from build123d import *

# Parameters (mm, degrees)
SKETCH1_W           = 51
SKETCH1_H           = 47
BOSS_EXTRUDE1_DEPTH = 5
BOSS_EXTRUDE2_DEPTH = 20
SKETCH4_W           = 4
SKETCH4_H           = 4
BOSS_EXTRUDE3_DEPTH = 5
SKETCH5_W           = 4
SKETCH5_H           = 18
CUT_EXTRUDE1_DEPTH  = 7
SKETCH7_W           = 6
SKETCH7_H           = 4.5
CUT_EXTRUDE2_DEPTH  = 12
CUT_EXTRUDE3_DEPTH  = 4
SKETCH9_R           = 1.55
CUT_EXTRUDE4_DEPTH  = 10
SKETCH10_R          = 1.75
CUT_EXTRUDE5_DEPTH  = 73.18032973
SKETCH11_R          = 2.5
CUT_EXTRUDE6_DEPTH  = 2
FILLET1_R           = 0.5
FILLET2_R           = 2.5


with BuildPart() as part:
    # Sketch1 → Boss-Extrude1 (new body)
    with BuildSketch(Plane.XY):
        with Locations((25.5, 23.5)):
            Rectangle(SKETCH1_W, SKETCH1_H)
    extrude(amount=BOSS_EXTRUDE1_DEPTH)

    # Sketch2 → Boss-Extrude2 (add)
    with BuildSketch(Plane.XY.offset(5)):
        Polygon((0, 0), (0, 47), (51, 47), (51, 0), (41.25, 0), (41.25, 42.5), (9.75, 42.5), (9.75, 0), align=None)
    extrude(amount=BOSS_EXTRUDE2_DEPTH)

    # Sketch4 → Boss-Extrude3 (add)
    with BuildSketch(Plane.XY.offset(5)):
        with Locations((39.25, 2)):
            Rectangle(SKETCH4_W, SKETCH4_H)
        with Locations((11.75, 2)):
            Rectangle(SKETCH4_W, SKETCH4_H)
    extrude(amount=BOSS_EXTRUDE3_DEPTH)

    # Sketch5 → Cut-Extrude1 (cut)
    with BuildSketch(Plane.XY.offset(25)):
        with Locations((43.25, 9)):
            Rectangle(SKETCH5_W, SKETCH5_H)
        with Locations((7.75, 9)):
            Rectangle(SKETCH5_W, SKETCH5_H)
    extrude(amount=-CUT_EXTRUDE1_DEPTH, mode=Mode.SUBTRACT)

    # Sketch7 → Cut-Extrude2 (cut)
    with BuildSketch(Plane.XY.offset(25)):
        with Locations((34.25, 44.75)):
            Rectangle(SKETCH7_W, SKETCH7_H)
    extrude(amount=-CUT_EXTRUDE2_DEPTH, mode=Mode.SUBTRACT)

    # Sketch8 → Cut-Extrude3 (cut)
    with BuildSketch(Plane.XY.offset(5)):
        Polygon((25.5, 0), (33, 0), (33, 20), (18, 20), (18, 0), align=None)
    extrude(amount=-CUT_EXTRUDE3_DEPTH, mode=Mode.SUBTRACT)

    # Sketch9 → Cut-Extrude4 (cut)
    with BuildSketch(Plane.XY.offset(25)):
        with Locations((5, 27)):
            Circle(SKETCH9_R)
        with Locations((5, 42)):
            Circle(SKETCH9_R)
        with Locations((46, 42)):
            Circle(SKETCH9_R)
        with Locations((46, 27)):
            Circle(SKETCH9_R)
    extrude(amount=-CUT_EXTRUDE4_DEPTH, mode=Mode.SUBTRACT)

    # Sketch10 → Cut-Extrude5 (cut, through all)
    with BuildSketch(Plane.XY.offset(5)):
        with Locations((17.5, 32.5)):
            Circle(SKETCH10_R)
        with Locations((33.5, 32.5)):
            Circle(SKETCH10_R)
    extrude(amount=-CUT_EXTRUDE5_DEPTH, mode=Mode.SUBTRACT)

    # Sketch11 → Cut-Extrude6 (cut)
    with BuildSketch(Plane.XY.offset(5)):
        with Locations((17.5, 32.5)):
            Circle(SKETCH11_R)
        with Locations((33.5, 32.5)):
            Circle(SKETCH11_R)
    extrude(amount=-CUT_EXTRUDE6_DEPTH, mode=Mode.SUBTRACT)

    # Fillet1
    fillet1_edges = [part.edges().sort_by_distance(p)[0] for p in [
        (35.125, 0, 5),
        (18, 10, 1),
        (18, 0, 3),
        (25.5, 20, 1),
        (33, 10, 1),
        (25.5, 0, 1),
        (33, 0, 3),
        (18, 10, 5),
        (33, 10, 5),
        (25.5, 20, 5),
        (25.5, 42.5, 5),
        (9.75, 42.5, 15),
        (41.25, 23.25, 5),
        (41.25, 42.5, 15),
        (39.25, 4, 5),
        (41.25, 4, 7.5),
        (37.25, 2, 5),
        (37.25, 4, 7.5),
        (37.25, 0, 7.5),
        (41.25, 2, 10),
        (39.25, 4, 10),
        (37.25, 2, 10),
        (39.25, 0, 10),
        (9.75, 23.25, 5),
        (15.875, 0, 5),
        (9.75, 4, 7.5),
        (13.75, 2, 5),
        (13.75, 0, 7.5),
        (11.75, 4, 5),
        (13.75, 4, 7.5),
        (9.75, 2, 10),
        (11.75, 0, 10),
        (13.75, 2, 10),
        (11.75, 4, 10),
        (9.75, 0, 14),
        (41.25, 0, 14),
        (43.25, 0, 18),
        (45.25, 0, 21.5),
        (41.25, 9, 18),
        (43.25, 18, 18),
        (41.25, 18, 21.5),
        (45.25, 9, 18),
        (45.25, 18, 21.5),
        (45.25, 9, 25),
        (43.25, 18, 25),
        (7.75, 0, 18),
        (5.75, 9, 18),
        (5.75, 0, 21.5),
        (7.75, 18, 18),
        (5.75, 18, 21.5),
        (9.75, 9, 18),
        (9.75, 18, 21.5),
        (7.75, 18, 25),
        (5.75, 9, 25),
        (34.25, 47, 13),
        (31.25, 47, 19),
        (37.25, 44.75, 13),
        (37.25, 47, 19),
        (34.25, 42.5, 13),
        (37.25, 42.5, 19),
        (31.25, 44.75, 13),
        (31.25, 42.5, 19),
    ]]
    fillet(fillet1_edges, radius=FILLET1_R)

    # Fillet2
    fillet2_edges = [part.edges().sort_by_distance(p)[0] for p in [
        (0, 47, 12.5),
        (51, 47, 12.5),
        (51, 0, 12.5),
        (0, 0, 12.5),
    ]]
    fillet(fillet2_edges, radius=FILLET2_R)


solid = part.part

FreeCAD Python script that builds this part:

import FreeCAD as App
import Part
import Sketcher

V = App.Vector


def edges_at(feature, points):
    """Names of the edges that pass closest to the given points."""
    edges = feature.Shape.Edges
    near = lambda p: min(range(len(edges)), key=lambda i: edges[i].distToShape(Part.Vertex(*p))[0])
    return sorted({f"Edge{near(p) + 1}" for p in points})


def add_polygon(sketch, points):
    """Adds a closed chain of lines whose ends are joined by coincident constraints."""
    first, n = sketch.GeometryCount, len(points)
    for a, b in zip(points, points[1:] + points[:1]):
        sketch.addGeometry(Part.LineSegment(App.Vector(*a, 0), App.Vector(*b, 0)), False)
    for i in range(n):
        sketch.addConstraint(Sketcher.Constraint("Coincident", first + i, 2, first + (i + 1) % n, 1))

doc = App.newDocument("Part")
body = doc.addObject("PartDesign::Body", "Body")

# Sketch on XY plane
sketch1 = doc.addObject("Sketcher::SketchObject", "Sketch")
body.addObject(sketch1)
sketch1.AttachmentSupport = (doc.XY_Plane, [""])
sketch1.MapMode = "FlatFace"
add_polygon(sketch1, [(0, 47), (0, 0), (51, 0), (51, 47)])  # lines 0-3
sketch1.addConstraint(Sketcher.Constraint("Vertical", 0))
sketch1.addConstraint(Sketcher.Constraint("Horizontal", 1))
sketch1.addConstraint(Sketcher.Constraint("Vertical", 2))
sketch1.addConstraint(Sketcher.Constraint("Horizontal", 3))
sketch1.addConstraint(Sketcher.Constraint("Coincident", 0, 2, -1, 1))
sketch1.addConstraint(Sketcher.Constraint("DistanceX", 1, 1, 1, 2, 51.0))
sketch1.addConstraint(Sketcher.Constraint("DistanceY", 0, 2, 0, 1, 47.0))
pad1 = doc.addObject("PartDesign::Pad", "Pad")
body.addObject(pad1)
pad1.Profile = sketch1
pad1.Length = 5

# Sketch on XY plane
sketch2 = doc.addObject("Sketcher::SketchObject", "Sketch001")
body.addObject(sketch2)
sketch2.AttachmentSupport = (doc.XY_Plane, [""])
sketch2.MapMode = "FlatFace"
sketch2.AttachmentOffset = App.Placement(V(0, 0, 5), App.Rotation())
add_polygon(sketch2, [(0, 47), (0, 0), (9.75, 0), (9.75, 42.5), (41.25, 42.5), (41.25, 0), (51, 0), (51, 47)])  # lines 0-7
sketch2.addConstraint(Sketcher.Constraint("Vertical", 0))
sketch2.addConstraint(Sketcher.Constraint("Horizontal", 1))
sketch2.addConstraint(Sketcher.Constraint("Vertical", 2))
sketch2.addConstraint(Sketcher.Constraint("Horizontal", 3))
sketch2.addConstraint(Sketcher.Constraint("Vertical", 4))
sketch2.addConstraint(Sketcher.Constraint("Horizontal", 5))
sketch2.addConstraint(Sketcher.Constraint("Vertical", 6))
sketch2.addConstraint(Sketcher.Constraint("Horizontal", 7))
sketch2.addConstraint(Sketcher.Constraint("Coincident", 0, 2, -1, 1))
sketch2.addConstraint(Sketcher.Constraint("PointOnObject", 4, 2, -1))
sketch2.addConstraint(Sketcher.Constraint("Equal", 1, 5))
sketch2.addConstraint(Sketcher.Constraint("DistanceX", 7, 2, 7, 1, 51.0))
sketch2.addConstraint(Sketcher.Constraint("DistanceY", 0, 2, 0, 1, 47.0))
sketch2.addConstraint(Sketcher.Constraint("DistanceX", 3, 1, 3, 2, 31.5))
sketch2.addConstraint(Sketcher.Constraint("DistanceY", 2, 1, 2, 2, 42.5))
pad2 = doc.addObject("PartDesign::Pad", "Pad001")
body.addObject(pad2)
pad2.Profile = sketch2
pad2.Length = 20

# Sketch on XY plane
sketch3 = doc.addObject("Sketcher::SketchObject", "Sketch002")
body.addObject(sketch3)
sketch3.AttachmentSupport = (doc.XY_Plane, [""])
sketch3.MapMode = "FlatFace"
sketch3.AttachmentOffset = App.Placement(V(0, 0, 5), App.Rotation())
add_polygon(sketch3, [(37.25, 4), (37.25, 0), (41.25, 0), (41.25, 4)])  # lines 0-3
add_polygon(sketch3, [(9.75, 4), (9.75, 0), (13.75, 0), (13.75, 4)])  # lines 4-7
sketch3.addConstraint(Sketcher.Constraint("Vertical", 0))
sketch3.addConstraint(Sketcher.Constraint("Horizontal", 1))
sketch3.addConstraint(Sketcher.Constraint("Vertical", 2))
sketch3.addConstraint(Sketcher.Constraint("Horizontal", 3))
sketch3.addConstraint(Sketcher.Constraint("Vertical", 4))
sketch3.addConstraint(Sketcher.Constraint("Horizontal", 5))
sketch3.addConstraint(Sketcher.Constraint("Vertical", 6))
sketch3.addConstraint(Sketcher.Constraint("Horizontal", 7))
sketch3.addConstraint(Sketcher.Constraint("PointOnObject", 0, 2, -1))
sketch3.addConstraint(Sketcher.Constraint("PointOnObject", 4, 2, -1))
sketch3.addConstraint(Sketcher.Constraint("Horizontal", 3, 2, 6, 2))
sketch3.addConstraint(Sketcher.Constraint("Equal", 3, 5))
sketch3.addConstraint(Sketcher.Constraint("Equal", 7, 0))
sketch3.addConstraint(Sketcher.Constraint("DistanceX", 1, 1, 1, 2, 4.0))
sketch3.addConstraint(Sketcher.Constraint("DistanceX", 4, 2, 0, 2, 27.5))
sketch3.addConstraint(Sketcher.Constraint("DistanceX", -1, 1, 0, 2, 37.25))
pad3 = doc.addObject("PartDesign::Pad", "Pad002")
body.addObject(pad3)
pad3.Profile = sketch3
pad3.Length = 5

# Sketch on XY plane
sketch4 = doc.addObject("Sketcher::SketchObject", "Sketch003")
body.addObject(sketch4)
sketch4.AttachmentSupport = (doc.XY_Plane, [""])
sketch4.MapMode = "FlatFace"
sketch4.AttachmentOffset = App.Placement(V(0, 0, 25), App.Rotation())
add_polygon(sketch4, [(41.25, 18), (41.25, 0), (45.25, 0), (45.25, 18)])  # lines 0-3
add_polygon(sketch4, [(5.75, 18), (5.75, 0), (9.75, 0), (9.75, 18)])  # lines 4-7
sketch4.addConstraint(Sketcher.Constraint("Vertical", 0))
sketch4.addConstraint(Sketcher.Constraint("Horizontal", 1))
sketch4.addConstraint(Sketcher.Constraint("Vertical", 2))
sketch4.addConstraint(Sketcher.Constraint("Horizontal", 3))
sketch4.addConstraint(Sketcher.Constraint("Vertical", 4))
sketch4.addConstraint(Sketcher.Constraint("Horizontal", 5))
sketch4.addConstraint(Sketcher.Constraint("Vertical", 6))
sketch4.addConstraint(Sketcher.Constraint("Horizontal", 7))
sketch4.addConstraint(Sketcher.Constraint("PointOnObject", 0, 2, -1))
sketch4.addConstraint(Sketcher.Constraint("PointOnObject", 4, 2, -1))
sketch4.addConstraint(Sketcher.Constraint("Horizontal", 3, 2, 6, 2))
sketch4.addConstraint(Sketcher.Constraint("Equal", 3, 5))
sketch4.addConstraint(Sketcher.Constraint("DistanceX", 1, 1, 1, 2, 4.0))
sketch4.addConstraint(Sketcher.Constraint("DistanceY", 0, 2, 0, 1, 18.0))
sketch4.addConstraint(Sketcher.Constraint("DistanceX", 4, 2, 0, 2, 35.5))
sketch4.addConstraint(Sketcher.Constraint("DistanceX", -1, 1, 0, 2, 41.25))
pocket1 = doc.addObject("PartDesign::Pocket", "Pocket")
body.addObject(pocket1)
pocket1.Profile = sketch4
pocket1.Length = 7

# Sketch on XY plane
sketch5 = doc.addObject("Sketcher::SketchObject", "Sketch004")
body.addObject(sketch5)
sketch5.AttachmentSupport = (doc.XY_Plane, [""])
sketch5.MapMode = "FlatFace"
sketch5.AttachmentOffset = App.Placement(V(0, 0, 25), App.Rotation())
add_polygon(sketch5, [(31.25, 47), (31.25, 42.5), (37.25, 42.5), (37.25, 47)])  # lines 0-3
sketch5.addConstraint(Sketcher.Constraint("Vertical", 0))
sketch5.addConstraint(Sketcher.Constraint("Horizontal", 1))
sketch5.addConstraint(Sketcher.Constraint("Vertical", 2))
sketch5.addConstraint(Sketcher.Constraint("Horizontal", 3))
sketch5.addConstraint(Sketcher.Constraint("DistanceX", 1, 1, 1, 2, 6.0))
sketch5.addConstraint(Sketcher.Constraint("DistanceY", 0, 2, 0, 1, 4.5))
sketch5.addConstraint(Sketcher.Constraint("DistanceY", -1, 1, 2, 2, 47.0))
sketch5.addConstraint(Sketcher.Constraint("DistanceX", -1, 1, 0, 2, 31.25))
pocket2 = doc.addObject("PartDesign::Pocket", "Pocket001")
body.addObject(pocket2)
pocket2.Profile = sketch5
pocket2.Length = 12

# Sketch on XY plane
sketch6 = doc.addObject("Sketcher::SketchObject", "Sketch005")
body.addObject(sketch6)
sketch6.AttachmentSupport = (doc.XY_Plane, [""])
sketch6.MapMode = "FlatFace"
sketch6.AttachmentOffset = App.Placement(V(0, 0, 5), App.Rotation())
add_polygon(sketch6, [(33, 0), (33, 20), (18, 20), (18, 0)])  # lines 0-3
sketch6.addConstraint(Sketcher.Constraint("Vertical", 0))
sketch6.addConstraint(Sketcher.Constraint("Horizontal", 1))
sketch6.addConstraint(Sketcher.Constraint("Vertical", 2))
sketch6.addConstraint(Sketcher.Constraint("Horizontal", 3))
sketch6.addConstraint(Sketcher.Constraint("PointOnObject", 2, 2, -1))
sketch6.addConstraint(Sketcher.Constraint("DistanceX", 1, 2, 1, 1, 15.0))
sketch6.addConstraint(Sketcher.Constraint("DistanceY", 0, 1, 0, 2, 20.0))
sketch6.addConstraint(Sketcher.Constraint("DistanceX", -1, 1, 0, 2, 33.0))
pocket3 = doc.addObject("PartDesign::Pocket", "Pocket002")
body.addObject(pocket3)
pocket3.Profile = sketch6
pocket3.Length = 4

# Sketch on XY plane
sketch7 = doc.addObject("Sketcher::SketchObject", "Sketch006")
body.addObject(sketch7)
sketch7.AttachmentSupport = (doc.XY_Plane, [""])
sketch7.MapMode = "FlatFace"
sketch7.AttachmentOffset = App.Placement(V(0, 0, 25), App.Rotation())
sketch7.addGeometry(Part.Circle(V(5, 27, 0), V(0, 0, 1), 1.55), False)
sketch7.addGeometry(Part.Circle(V(5, 42, 0), V(0, 0, 1), 1.55), False)
sketch7.addGeometry(Part.Circle(V(46, 42, 0), V(0, 0, 1), 1.55), False)
sketch7.addGeometry(Part.Circle(V(46, 27, 0), V(0, 0, 1), 1.55), False)
sketch7.addConstraint(Sketcher.Constraint("Equal", 0, 1))
sketch7.addConstraint(Sketcher.Constraint("Equal", 1, 2))
sketch7.addConstraint(Sketcher.Constraint("Equal", 2, 3))
sketch7.addConstraint(Sketcher.Constraint("Horizontal", 1, 3, 2, 3))
sketch7.addConstraint(Sketcher.Constraint("Horizontal", 0, 3, 3, 3))
sketch7.addConstraint(Sketcher.Constraint("Vertical", 0, 3, 1, 3))
sketch7.addConstraint(Sketcher.Constraint("Vertical", 2, 3, 3, 3))
sketch7.addConstraint(Sketcher.Constraint("Diameter", 0, 3.1))
sketch7.addConstraint(Sketcher.Constraint("DistanceX", -1, 1, 0, 3, 5.0))
sketch7.addConstraint(Sketcher.Constraint("DistanceY", -1, 1, 0, 3, 27.0))
sketch7.addConstraint(Sketcher.Constraint("DistanceY", -1, 1, 1, 3, 42.0))
sketch7.addConstraint(Sketcher.Constraint("DistanceX", -1, 1, 2, 3, 46.0))
pocket4 = doc.addObject("PartDesign::Pocket", "Pocket003")
body.addObject(pocket4)
pocket4.Profile = sketch7
pocket4.Length = 10

# Sketch on XY plane
sketch8 = doc.addObject("Sketcher::SketchObject", "Sketch007")
body.addObject(sketch8)
sketch8.AttachmentSupport = (doc.XY_Plane, [""])
sketch8.MapMode = "FlatFace"
sketch8.AttachmentOffset = App.Placement(V(0, 0, 5), App.Rotation())
sketch8.addGeometry(Part.Circle(V(17.5, 32.5, 0), V(0, 0, 1), 1.75), False)
sketch8.addGeometry(Part.Circle(V(33.5, 32.5, 0), V(0, 0, 1), 1.75), False)
sketch8.addConstraint(Sketcher.Constraint("Equal", 0, 1))
sketch8.addConstraint(Sketcher.Constraint("Horizontal", 0, 3, 1, 3))
sketch8.addConstraint(Sketcher.Constraint("Diameter", 0, 3.5))
sketch8.addConstraint(Sketcher.Constraint("DistanceX", 0, 3, 1, 3, 16.0))
sketch8.addConstraint(Sketcher.Constraint("DistanceX", -1, 1, 0, 3, 17.5))
sketch8.addConstraint(Sketcher.Constraint("DistanceY", -1, 1, 0, 3, 32.5))
pocket5 = doc.addObject("PartDesign::Pocket", "Pocket004")
body.addObject(pocket5)
pocket5.Profile = sketch8
pocket5.Type = "ThroughAll"

# Sketch on XY plane
sketch9 = doc.addObject("Sketcher::SketchObject", "Sketch008")
body.addObject(sketch9)
sketch9.AttachmentSupport = (doc.XY_Plane, [""])
sketch9.MapMode = "FlatFace"
sketch9.AttachmentOffset = App.Placement(V(0, 0, 5), App.Rotation())
sketch9.addGeometry(Part.Circle(V(17.5, 32.5, 0), V(0, 0, 1), 2.5), False)
sketch9.addGeometry(Part.Circle(V(33.5, 32.5, 0), V(0, 0, 1), 2.5), False)
sketch9.addConstraint(Sketcher.Constraint("Equal", 0, 1))
sketch9.addConstraint(Sketcher.Constraint("Horizontal", 0, 3, 1, 3))
sketch9.addConstraint(Sketcher.Constraint("Diameter", 0, 5.0))
sketch9.addConstraint(Sketcher.Constraint("DistanceX", 0, 3, 1, 3, 16.0))
sketch9.addConstraint(Sketcher.Constraint("DistanceX", -1, 1, 0, 3, 17.5))
sketch9.addConstraint(Sketcher.Constraint("DistanceY", -1, 1, 0, 3, 32.5))
pocket6 = doc.addObject("PartDesign::Pocket", "Pocket005")
body.addObject(pocket6)
pocket6.Profile = sketch9
pocket6.Length = 2
doc.recompute()

fillet = doc.addObject("PartDesign::Fillet", "Fillet")
body.addObject(fillet)
fillet.Base = (pocket6, edges_at(pocket6, [
    (35.125, 0, 5),
    (18, 10, 1),
    (18, 0, 3),
    (25.5, 20, 1),
    (33, 10, 1),
    (25.5, 0, 1),
    (33, 0, 3),
    (18, 10, 5),
    (33, 10, 5),
    (25.5, 20, 5),
    (25.5, 42.5, 5),
    (9.75, 42.5, 15),
    (41.25, 23.25, 5),
    (41.25, 42.5, 15),
    (39.25, 4, 5),
    (41.25, 4, 7.5),
    (37.25, 2, 5),
    (37.25, 4, 7.5),
    (37.25, 0, 7.5),
    (41.25, 2, 10),
    (39.25, 4, 10),
    (37.25, 2, 10),
    (39.25, 0, 10),
    (9.75, 23.25, 5),
    (15.875, 0, 5),
    (9.75, 4, 7.5),
    (13.75, 2, 5),
    (13.75, 0, 7.5),
    (11.75, 4, 5),
    (13.75, 4, 7.5),
    (9.75, 2, 10),
    (11.75, 0, 10),
    (13.75, 2, 10),
    (11.75, 4, 10),
    (9.75, 0, 14),
    (41.25, 0, 14),
    (43.25, 0, 18),
    (45.25, 0, 21.5),
    (41.25, 9, 18),
    (43.25, 18, 18),
    (41.25, 18, 21.5),
    (45.25, 9, 18),
    (45.25, 18, 21.5),
    (45.25, 9, 25),
    (43.25, 18, 25),
    (7.75, 0, 18),
    (5.75, 9, 18),
    (5.75, 0, 21.5),
    (7.75, 18, 18),
    (5.75, 18, 21.5),
    (9.75, 9, 18),
    (9.75, 18, 21.5),
    (7.75, 18, 25),
    (5.75, 9, 25),
    (34.25, 47, 13),
    (31.25, 47, 19),
    (37.25, 44.75, 13),
    (37.25, 47, 19),
    (34.25, 42.5, 13),
    (37.25, 42.5, 19),
    (31.25, 44.75, 13),
    (31.25, 42.5, 19),
]))
fillet.Radius = 0.5
doc.recompute()

fillet2 = doc.addObject("PartDesign::Fillet", "Fillet001")
body.addObject(fillet2)
fillet2.Base = (fillet, edges_at(fillet, [
    (0, 47, 12.5),
    (51, 47, 12.5),
    (51, 0, 12.5),
    (0, 0, 12.5),
]))
fillet2.Radius = 2.5

doc.recompute()
